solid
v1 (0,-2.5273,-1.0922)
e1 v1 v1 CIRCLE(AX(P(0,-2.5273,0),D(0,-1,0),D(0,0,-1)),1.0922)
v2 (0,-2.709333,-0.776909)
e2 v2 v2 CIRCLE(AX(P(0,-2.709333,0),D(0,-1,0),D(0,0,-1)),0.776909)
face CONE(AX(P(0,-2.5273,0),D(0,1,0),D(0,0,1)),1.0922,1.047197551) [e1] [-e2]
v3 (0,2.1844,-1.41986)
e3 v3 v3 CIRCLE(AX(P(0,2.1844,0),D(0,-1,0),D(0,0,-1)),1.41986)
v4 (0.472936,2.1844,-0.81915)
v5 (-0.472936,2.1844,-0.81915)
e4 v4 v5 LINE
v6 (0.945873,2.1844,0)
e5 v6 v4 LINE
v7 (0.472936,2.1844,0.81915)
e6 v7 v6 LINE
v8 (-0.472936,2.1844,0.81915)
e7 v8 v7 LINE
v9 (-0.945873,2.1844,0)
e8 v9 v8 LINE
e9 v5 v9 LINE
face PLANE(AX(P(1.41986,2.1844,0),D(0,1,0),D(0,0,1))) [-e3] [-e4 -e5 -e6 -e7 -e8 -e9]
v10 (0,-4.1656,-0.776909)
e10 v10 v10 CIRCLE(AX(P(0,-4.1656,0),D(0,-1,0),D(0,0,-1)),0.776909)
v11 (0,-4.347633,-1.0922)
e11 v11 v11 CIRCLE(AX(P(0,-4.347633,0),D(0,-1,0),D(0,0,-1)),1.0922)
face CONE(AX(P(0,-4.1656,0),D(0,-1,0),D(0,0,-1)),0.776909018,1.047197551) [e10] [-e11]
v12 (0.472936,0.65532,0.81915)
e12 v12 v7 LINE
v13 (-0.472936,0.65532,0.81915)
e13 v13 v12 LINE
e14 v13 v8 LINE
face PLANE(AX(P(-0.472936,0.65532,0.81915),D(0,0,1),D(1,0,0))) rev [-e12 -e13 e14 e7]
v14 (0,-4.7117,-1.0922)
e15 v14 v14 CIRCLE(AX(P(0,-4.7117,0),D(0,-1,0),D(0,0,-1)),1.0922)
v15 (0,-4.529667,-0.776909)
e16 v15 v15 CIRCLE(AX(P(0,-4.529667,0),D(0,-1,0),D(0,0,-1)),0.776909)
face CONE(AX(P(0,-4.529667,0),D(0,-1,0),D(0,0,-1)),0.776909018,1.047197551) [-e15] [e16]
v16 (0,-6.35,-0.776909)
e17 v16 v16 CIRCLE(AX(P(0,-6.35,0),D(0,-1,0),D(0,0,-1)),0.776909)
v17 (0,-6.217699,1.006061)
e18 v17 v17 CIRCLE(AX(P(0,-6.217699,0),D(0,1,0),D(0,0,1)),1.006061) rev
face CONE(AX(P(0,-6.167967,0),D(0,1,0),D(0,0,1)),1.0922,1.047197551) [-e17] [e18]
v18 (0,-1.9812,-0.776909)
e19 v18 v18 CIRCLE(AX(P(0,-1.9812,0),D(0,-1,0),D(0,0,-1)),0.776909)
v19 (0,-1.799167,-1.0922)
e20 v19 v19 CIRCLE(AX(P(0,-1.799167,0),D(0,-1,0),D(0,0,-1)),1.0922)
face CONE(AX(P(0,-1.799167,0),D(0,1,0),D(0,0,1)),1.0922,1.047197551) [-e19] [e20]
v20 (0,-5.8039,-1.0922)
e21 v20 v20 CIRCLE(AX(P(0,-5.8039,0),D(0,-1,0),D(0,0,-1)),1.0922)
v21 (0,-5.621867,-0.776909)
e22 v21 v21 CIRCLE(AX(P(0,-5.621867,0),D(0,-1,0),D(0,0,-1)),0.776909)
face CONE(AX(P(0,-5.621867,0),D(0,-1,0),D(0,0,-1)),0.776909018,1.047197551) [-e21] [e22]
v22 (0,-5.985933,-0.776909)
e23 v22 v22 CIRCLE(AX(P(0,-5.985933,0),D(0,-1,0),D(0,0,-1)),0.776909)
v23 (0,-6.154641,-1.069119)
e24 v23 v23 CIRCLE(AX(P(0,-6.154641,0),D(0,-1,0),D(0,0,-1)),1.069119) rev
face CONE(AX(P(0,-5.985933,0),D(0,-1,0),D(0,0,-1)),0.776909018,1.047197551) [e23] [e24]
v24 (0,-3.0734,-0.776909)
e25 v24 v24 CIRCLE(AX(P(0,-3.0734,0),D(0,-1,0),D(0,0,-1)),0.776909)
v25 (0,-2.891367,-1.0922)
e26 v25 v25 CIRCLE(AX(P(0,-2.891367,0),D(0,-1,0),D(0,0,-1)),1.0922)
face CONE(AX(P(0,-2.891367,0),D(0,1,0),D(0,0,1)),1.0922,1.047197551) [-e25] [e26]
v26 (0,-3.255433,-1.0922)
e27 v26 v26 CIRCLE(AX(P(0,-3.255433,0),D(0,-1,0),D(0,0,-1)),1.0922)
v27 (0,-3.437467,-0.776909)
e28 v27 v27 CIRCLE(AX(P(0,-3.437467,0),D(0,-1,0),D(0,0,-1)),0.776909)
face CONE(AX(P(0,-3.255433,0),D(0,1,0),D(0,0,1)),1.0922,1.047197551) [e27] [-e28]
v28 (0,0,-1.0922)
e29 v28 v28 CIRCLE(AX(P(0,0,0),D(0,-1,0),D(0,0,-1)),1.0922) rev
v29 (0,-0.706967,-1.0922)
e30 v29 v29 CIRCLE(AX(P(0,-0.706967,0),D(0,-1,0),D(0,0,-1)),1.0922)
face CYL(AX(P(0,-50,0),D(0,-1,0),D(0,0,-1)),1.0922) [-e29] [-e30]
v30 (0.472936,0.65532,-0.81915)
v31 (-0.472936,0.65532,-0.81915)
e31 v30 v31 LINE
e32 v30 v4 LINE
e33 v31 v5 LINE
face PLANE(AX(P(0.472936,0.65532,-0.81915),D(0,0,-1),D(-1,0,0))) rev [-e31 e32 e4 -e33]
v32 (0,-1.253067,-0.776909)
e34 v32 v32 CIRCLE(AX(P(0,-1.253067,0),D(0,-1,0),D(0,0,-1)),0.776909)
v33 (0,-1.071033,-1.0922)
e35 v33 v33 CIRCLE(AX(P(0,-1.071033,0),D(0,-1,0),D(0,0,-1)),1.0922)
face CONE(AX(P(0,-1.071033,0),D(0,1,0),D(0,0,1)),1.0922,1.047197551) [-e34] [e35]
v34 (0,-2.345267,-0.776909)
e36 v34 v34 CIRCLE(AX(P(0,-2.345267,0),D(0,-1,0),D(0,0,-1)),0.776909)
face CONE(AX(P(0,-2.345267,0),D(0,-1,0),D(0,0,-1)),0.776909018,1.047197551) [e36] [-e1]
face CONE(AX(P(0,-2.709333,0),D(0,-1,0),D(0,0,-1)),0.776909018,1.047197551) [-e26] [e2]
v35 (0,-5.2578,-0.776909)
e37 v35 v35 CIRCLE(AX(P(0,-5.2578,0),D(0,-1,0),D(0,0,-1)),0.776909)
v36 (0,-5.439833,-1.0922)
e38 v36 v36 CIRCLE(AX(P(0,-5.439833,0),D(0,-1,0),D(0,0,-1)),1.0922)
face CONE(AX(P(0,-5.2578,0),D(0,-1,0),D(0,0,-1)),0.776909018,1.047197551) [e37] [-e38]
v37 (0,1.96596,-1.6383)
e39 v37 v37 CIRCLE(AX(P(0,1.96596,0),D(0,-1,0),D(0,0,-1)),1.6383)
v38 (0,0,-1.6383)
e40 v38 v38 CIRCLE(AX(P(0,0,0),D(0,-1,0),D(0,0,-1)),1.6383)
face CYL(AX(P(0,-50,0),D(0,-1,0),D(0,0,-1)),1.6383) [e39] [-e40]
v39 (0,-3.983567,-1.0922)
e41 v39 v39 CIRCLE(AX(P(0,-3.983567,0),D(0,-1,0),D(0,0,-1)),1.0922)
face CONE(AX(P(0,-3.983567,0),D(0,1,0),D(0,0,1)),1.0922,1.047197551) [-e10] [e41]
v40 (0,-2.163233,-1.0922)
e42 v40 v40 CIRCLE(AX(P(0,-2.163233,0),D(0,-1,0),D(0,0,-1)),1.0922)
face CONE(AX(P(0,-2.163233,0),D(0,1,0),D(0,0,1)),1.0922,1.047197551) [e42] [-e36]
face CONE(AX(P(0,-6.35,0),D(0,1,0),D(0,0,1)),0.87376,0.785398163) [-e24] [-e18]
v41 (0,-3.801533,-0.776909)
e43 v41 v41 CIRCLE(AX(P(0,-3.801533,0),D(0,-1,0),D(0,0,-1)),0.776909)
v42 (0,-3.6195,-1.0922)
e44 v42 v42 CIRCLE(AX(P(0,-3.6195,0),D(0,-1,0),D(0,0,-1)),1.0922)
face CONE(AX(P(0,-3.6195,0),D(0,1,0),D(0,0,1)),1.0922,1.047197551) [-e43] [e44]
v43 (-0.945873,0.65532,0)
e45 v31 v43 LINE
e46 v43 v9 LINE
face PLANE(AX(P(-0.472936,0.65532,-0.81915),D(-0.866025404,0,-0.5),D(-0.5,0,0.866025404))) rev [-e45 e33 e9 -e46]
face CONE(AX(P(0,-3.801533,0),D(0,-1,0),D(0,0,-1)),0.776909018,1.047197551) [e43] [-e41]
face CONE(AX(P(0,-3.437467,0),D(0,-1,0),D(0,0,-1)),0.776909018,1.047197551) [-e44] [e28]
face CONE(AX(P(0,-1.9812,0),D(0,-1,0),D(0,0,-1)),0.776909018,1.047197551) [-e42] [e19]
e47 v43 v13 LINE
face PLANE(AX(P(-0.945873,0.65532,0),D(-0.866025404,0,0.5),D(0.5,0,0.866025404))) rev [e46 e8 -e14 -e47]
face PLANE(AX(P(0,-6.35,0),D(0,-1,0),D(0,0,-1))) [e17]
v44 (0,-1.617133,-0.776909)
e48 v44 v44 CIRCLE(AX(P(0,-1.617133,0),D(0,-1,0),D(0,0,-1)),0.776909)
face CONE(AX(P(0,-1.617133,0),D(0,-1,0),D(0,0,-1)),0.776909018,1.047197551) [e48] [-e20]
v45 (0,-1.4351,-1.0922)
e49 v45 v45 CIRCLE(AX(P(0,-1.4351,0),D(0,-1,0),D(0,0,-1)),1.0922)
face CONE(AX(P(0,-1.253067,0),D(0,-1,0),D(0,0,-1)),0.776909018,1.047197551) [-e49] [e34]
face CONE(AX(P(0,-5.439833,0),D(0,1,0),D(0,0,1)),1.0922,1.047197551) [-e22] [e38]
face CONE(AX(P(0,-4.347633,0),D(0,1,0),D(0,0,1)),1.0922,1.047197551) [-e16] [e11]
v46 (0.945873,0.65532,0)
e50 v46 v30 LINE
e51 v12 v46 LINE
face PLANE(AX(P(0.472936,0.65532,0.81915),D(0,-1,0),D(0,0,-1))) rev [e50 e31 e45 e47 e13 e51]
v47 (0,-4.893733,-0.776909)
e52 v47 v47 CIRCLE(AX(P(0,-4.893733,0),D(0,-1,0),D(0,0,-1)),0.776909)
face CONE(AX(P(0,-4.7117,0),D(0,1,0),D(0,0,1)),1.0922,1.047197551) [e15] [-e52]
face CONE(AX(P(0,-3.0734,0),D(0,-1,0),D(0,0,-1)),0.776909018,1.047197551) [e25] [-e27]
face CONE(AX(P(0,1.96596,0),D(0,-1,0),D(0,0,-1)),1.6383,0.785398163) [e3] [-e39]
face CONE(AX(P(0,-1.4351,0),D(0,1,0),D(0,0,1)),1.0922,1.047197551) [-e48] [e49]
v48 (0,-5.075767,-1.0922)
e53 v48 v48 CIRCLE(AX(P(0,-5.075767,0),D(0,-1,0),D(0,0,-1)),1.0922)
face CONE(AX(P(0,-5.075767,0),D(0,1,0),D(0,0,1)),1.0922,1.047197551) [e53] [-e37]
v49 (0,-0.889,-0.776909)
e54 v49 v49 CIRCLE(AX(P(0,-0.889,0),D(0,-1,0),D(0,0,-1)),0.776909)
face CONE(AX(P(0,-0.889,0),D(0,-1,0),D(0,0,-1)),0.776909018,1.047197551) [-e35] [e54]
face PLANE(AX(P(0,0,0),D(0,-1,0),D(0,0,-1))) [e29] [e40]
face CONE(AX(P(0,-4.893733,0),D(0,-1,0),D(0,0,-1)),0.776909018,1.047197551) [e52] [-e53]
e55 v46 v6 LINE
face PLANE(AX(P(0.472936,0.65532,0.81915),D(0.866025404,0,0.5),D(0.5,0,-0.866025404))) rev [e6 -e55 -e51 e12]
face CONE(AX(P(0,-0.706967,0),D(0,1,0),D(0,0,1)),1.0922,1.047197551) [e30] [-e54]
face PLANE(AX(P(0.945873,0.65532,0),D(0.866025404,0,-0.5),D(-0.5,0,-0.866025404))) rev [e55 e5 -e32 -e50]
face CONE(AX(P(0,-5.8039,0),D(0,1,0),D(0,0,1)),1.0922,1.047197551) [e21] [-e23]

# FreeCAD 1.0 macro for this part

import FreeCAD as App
import Part
import Sketcher
from FreeCAD import Vector
Q = App.Units.Quantity

doc = App.newDocument("Part")
body = doc.addObject("PartDesign::Body", "Body")

sketch1 = body.newObject("Sketcher::SketchObject", "Sketch")
sketch1.AttachmentSupport = (doc.getObject("XY_Plane"), [""])
sketch1.MapMode = "FlatFace"
sketch1.addGeometry([
    Part.LineSegment(Vector(0, 0.66, 0), Vector(0, -6.35, 0)),
    Part.LineSegment(Vector(0, -6.35, 0), Vector(0.87, -6.35, 0)),
    Part.LineSegment(Vector(0.87, -6.35, 0), Vector(1.09, -6.13, 0)),
    Part.LineSegment(Vector(1.09, -6.13, 0), Vector(1.09, 0.66, 0)),
    Part.LineSegment(Vector(1.09, 0.66, 0), Vector(0, 0.66, 0)),
], False)
sketch1.addConstraint([
    Sketcher.Constraint("Coincident", 0, 2, 1, 1),
    Sketcher.Constraint("Coincident", 1, 2, 2, 1),
    Sketcher.Constraint("Coincident", 2, 2, 3, 1),
    Sketcher.Constraint("Coincident", 3, 2, 4, 1),
    Sketcher.Constraint("Coincident", 4, 2, 0, 1),
    Sketcher.Constraint("Vertical", 0),
    Sketcher.Constraint("Horizontal", 1),
    Sketcher.Constraint("Vertical", 3),
    Sketcher.Constraint("Horizontal", 4),
    Sketcher.Constraint("PointOnObject", 0, 2, -2),
    Sketcher.Constraint("Angle", 2, Q("45 deg")),
    Sketcher.Constraint("DistanceX", 4, 2, 4, 1, Q("0.043 in")),
    Sketcher.Constraint("DistanceY", 0, 2, -1, 1, Q("0.25 in")),
    Sketcher.Constraint("DistanceX", 1, 1, 1, 2, Q("0.0344 in")),
    Sketcher.Constraint("DistanceY", 0, 2, 0, 1, Q("0.2758 in")),
])
revolution = body.newObject("PartDesign::Revolution", "Revolution")
revolution.Profile = sketch1
revolution.ReferenceAxis = (sketch1, ["V_Axis"])
revolution.Angle = 360

sketch2 = body.newObject("Sketcher::SketchObject", "Sketch001")
sketch2.AttachmentSupport = (doc.getObject("XY_Plane"), [""])
sketch2.MapMode = "FlatFace"
sketch2.addGeometry([
    Part.LineSegment(Vector(1.09, -0.71, 0), Vector(0.78, -0.89, 0)),
    Part.LineSegment(Vector(0.78, -0.89, 0), Vector(1.09, -1.07, 0)),
    Part.LineSegment(Vector(1.09, -1.07, 0), Vector(0.78, -1.25, 0)),
    Part.LineSegment(Vector(0.78, -1.25, 0), Vector(1.09, -1.44, 0)),
    Part.LineSegment(Vector(1.09, -1.44, 0), Vector(0.78, -1.62, 0)),
    Part.LineSegment(Vector(0.78, -1.62, 0), Vector(1.09, -1.8, 0)),
    Part.LineSegment(Vector(1.09, -1.8, 0), Vector(0.78, -1.98, 0)),
    Part.LineSegment(Vector(0.78, -1.98, 0), Vector(1.09, -2.16, 0)),
    Part.LineSegment(Vector(1.09, -2.16, 0), Vector(0.78, -2.35, 0)),
    Part.LineSegment(Vector(0.78, -2.35, 0), Vector(1.09, -2.53, 0)),
    Part.LineSegment(Vector(1.09, -2.53, 0), Vector(0.78, -2.71, 0)),
    Part.LineSegment(Vector(0.78, -2.71, 0), Vector(1.09, -2.89, 0)),
    Part.LineSegment(Vector(1.09, -2.89, 0), Vector(0.78, -3.07, 0)),
    Part.LineSegment(Vector(0.78, -3.07, 0), Vector(1.09, -3.26, 0)),
    Part.LineSegment(Vector(1.09, -3.26, 0), Vector(0.78, -3.44, 0)),
    Part.LineSegment(Vector(0.78, -3.44, 0), Vector(1.09, -3.62, 0)),
    Part.LineSegment(Vector(1.09, -3.62, 0), Vector(0.78, -3.8, 0)),
    Part.LineSegment(Vector(0.78, -3.8, 0), Vector(1.09, -3.98, 0)),
    Part.LineSegment(Vector(1.09, -3.98, 0), Vector(0.78, -4.17, 0)),
    Part.LineSegment(Vector(0.78, -4.17, 0), Vector(1.09, -4.35, 0)),
    Part.LineSegment(Vector(1.09, -4.35, 0), Vector(0.78, -4.53, 0)),
    Part.LineSegment(Vector(0.78, -4.53, 0), Vector(1.09, -4.71, 0)),
    Part.LineSegment(Vector(1.09, -4.71, 0), Vector(0.78, -4.89, 0)),
    Part.LineSegment(Vector(0.78, -4.89, 0), Vector(1.09, -5.08, 0)),
    Part.LineSegment(Vector(1.09, -5.08, 0), Vector(0.78, -5.26, 0)),
    Part.LineSegment(Vector(0.78, -5.26, 0), Vector(1.09, -5.44, 0)),
    Part.LineSegment(Vector(1.09, -5.44, 0), Vector(0.78, -5.62, 0)),
    Part.LineSegment(Vector(0.78, -5.62, 0), Vector(1.09, -5.8, 0)),
    Part.LineSegment(Vector(1.09, -5.8, 0), Vector(0.78, -5.99, 0)),
    Part.LineSegment(Vector(0.78, -5.99, 0), Vector(1.09, -6.17, 0)),
    Part.LineSegment(Vector(1.09, -6.17, 0), Vector(0.78, -6.35, 0)),
    Part.LineSegment(Vector(0.78, -6.35, 0), Vector(1.09, -6.53, 0)),
    Part.LineSegment(Vector(1.09, -6.53, 0), Vector(0.78, -6.71, 0)),
    Part.LineSegment(Vector(0.78, -6.71, 0), Vector(1.09, -6.9, 0)),
    Part.LineSegment(Vector(1.09, -6.9, 0), Vector(0.78, -7.08, 0)),
    Part.LineSegment(Vector(0.78, -7.08, 0), Vector(1.09, -7.26, 0)),
    Part.LineSegment(Vector(1.09, -7.26, 0), Vector(1.63, -7.26, 0)),
    Part.LineSegment(Vector(1.63, -7.26, 0), Vector(1.63, -0.71, 0)),
    Part.LineSegment(Vector(1.63, -0.71, 0), Vector(1.09, -0.71, 0)),
], False)
sketch2.addConstraint([
    Sketcher.Constraint("Coincident", 0, 2, 1, 1),
    Sketcher.Constraint("Coincident", 1, 2, 2, 1),
    Sketcher.Constraint("Coincident", 2, 2, 3, 1),
    Sketcher.Constraint("Coincident", 3, 2, 4, 1),
    Sketcher.Constraint("Coincident", 4, 2, 5, 1),
    Sketcher.Constraint("Coincident", 5, 2, 6, 1),
    Sketcher.Constraint("Coincident", 6, 2, 7, 1),
    Sketcher.Constraint("Coincident", 7, 2, 8, 1),
    Sketcher.Constraint("Coincident", 8, 2, 9, 1),
    Sketcher.Constraint("Coincident", 9, 2, 10, 1),
    Sketcher.Constraint("Coincident", 10, 2, 11, 1),
    Sketcher.Constraint("Coincident", 11, 2, 12, 1),
    Sketcher.Constraint("Coincident", 12, 2, 13, 1),
    Sketcher.Constraint("Coincident", 13, 2, 14, 1),
    Sketcher.Constraint("Coincident", 14, 2, 15, 1),
    Sketcher.Constraint("Coincident", 15, 2, 16, 1),
    Sketcher.Constraint("Coincident", 16, 2, 17, 1),
    Sketcher.Constraint("Coincident", 17, 2, 18, 1),
    Sketcher.Constraint("Coincident", 18, 2, 19, 1),
    Sketcher.Constraint("Coincident", 19, 2, 20, 1),
    Sketcher.Constraint("Coincident", 20, 2, 21, 1),
    Sketcher.Constraint("Coincident", 21, 2, 22, 1),
    Sketcher.Constraint("Coincident", 22, 2, 23, 1),
    Sketcher.Constraint("Coincident", 23, 2, 24, 1),
    Sketcher.Constraint("Coincident", 24, 2, 25, 1),
    Sketcher.Constraint("Coincident", 25, 2, 26, 1),
    Sketcher.Constraint("Coincident", 26, 2, 27, 1),
    Sketcher.Constraint("Coincident", 27, 2, 28, 1),
    Sketcher.Constraint("Coincident", 28, 2, 29, 1),
    Sketcher.Constraint("Coincident", 29, 2, 30, 1),
    Sketcher.Constraint("Coincident", 30, 2, 31, 1),
    Sketcher.Constraint("Coincident", 31, 2, 32, 1),
    Sketcher.Constraint("Coincident", 32, 2, 33, 1),
    Sketcher.Constraint("Coincident", 33, 2, 34, 1),
    Sketcher.Constraint("Coincident", 34, 2, 35, 1),
    Sketcher.Constraint("Coincident", 35, 2, 36, 1),
    Sketcher.Constraint("Coincident", 36, 2, 37, 1),
    Sketcher.Constraint("Coincident", 37, 2, 38, 1),
    Sketcher.Constraint("Coincident", 38, 2, 0, 1),
    Sketcher.Constraint("Horizontal", 36),
    Sketcher.Constraint("Vertical", 37),
    Sketcher.Constraint("Horizontal", 38),
    Sketcher.Constraint("Parallel", 0, 2),
    Sketcher.Constraint("Parallel", 1, 3),
    Sketcher.Constraint("Parallel", 2, 4),
    Sketcher.Constraint("Parallel", 3, 5),
    Sketcher.Constraint("Parallel", 4, 6),
    Sketcher.Constraint("Parallel", 5, 7),
    Sketcher.Constraint("Parallel", 6, 8),
    Sketcher.Constraint("Parallel", 7, 9),
    Sketcher.Constraint("Parallel", 8, 10),
    Sketcher.Constraint("Parallel", 9, 11),
    Sketcher.Constraint("Parallel", 10, 12),
    Sketcher.Constraint("Parallel", 11, 13),
    Sketcher.Constraint("Parallel", 12, 14),
    Sketcher.Constraint("Parallel", 13, 15),
    Sketcher.Constraint("Parallel", 14, 16),
    Sketcher.Constraint("Parallel", 15, 17),
    Sketcher.Constraint("Parallel", 16, 18),
    Sketcher.Constraint("Parallel", 17, 19),
    Sketcher.Constraint("Parallel", 18, 20),
    Sketcher.Constraint("Parallel", 19, 21),
    Sketcher.Constraint("Parallel", 20, 22),
    Sketcher.Constraint("Parallel", 21, 23),
    Sketcher.Constraint("Parallel", 22, 24),
    Sketcher.Constraint("Parallel", 23, 25),
    Sketcher.Constraint("Parallel", 24, 26),
    Sketcher.Constraint("Parallel", 25, 27),
    Sketcher.Constraint("Parallel", 26, 28),
    Sketcher.Constraint("Parallel", 27, 29),
    Sketcher.Constraint("Parallel", 28, 30),
    Sketcher.Constraint("Parallel", 29, 31),
    Sketcher.Constraint("Parallel", 30, 32),
    Sketcher.Constraint("Parallel", 31, 33),
    Sketcher.Constraint("Parallel", 32, 34),
    Sketcher.Constraint("Parallel", 33, 35),
    Sketcher.Constraint("Vertical", 0, 2, 2, 2),
    Sketcher.Constraint("Vertical", 1, 2, 3, 2),
    Sketcher.Constraint("Vertical", 2, 2, 4, 2),
    Sketcher.Constraint("Vertical", 3, 2, 5, 2),
    Sketcher.Constraint("Vertical", 4, 2, 6, 2),
    Sketcher.Constraint("Vertical", 5, 2, 7, 2),
    Sketcher.Constraint("Vertical", 6, 2, 8, 2),
    Sketcher.Constraint("Vertical", 7, 2, 9, 2),
    Sketcher.Constraint("Vertical", 8, 2, 10, 2),
    Sketcher.Constraint("Vertical", 9, 2, 11, 2),
    Sketcher.Constraint("Vertical", 10, 2, 12, 2),
    Sketcher.Constraint("Vertical", 11, 2, 13, 2),
    Sketcher.Constraint("Vertical", 12, 2, 14, 2),
    Sketcher.Constraint("Vertical", 13, 2, 15, 2),
    Sketcher.Constraint("Vertical", 14, 2, 16, 2),
    Sketcher.Constraint("Vertical", 15, 2, 17, 2),
    Sketcher.Constraint("Vertical", 16, 2, 18, 2),
    Sketcher.Constraint("Vertical", 17, 2, 19, 2),
    Sketcher.Constraint("Vertical", 18, 2, 20, 2),
    Sketcher.Constraint("Vertical", 19, 2, 21, 2),
    Sketcher.Constraint("Vertical", 20, 2, 22, 2),
    Sketcher.Constraint("Vertical", 21, 2, 23, 2),
    Sketcher.Constraint("Vertical", 22, 2, 24, 2),
    Sketcher.Constraint("Vertical", 23, 2, 25, 2),
    Sketcher.Constraint("Vertical", 24, 2, 26, 2),
    Sketcher.Constraint("Vertical", 25, 2, 27, 2),
    Sketcher.Constraint("Vertical", 26, 2, 28, 2),
    Sketcher.Constraint("Vertical", 27, 2, 29, 2),
    Sketcher.Constraint("Vertical", 28, 2, 30, 2),
    Sketcher.Constraint("Vertical", 29, 2, 31, 2),
    Sketcher.Constraint("Vertical", 30, 2, 32, 2),
    Sketcher.Constraint("Vertical", 31, 2, 33, 2),
    Sketcher.Constraint("Vertical", 32, 2, 34, 2),
    Sketcher.Constraint("Vertical", 33, 2, 35, 2),
    Sketcher.Constraint("Vertical", 35, 2, 38, 2),
    Sketcher.Constraint("Equal", 0, 1),
    Sketcher.Constraint("Angle", 0, Q("-150 deg")),
    Sketcher.Constraint("DistanceY", 37, 1, 37, 2, Q("0.258 in")),
    Sketcher.Constraint("DistanceY", 30, 2, -1, 1, Q("0.25 in")),
    Sketcher.Constraint("DistanceX", -1, 1, 1, 2, Q("0.043 in")),
    Sketcher.Constraint("DistanceX", 36, 1, 36, 2, Q("0.54154 mm")),
])
groove = body.newObject("PartDesign::Groove", "Groove")
groove.Profile = sketch2
groove.ReferenceAxis = (sketch2, ["V_Axis"])
groove.Angle = 360

sketch3 = body.newObject("Sketcher::SketchObject", "Sketch002")
sketch3.AttachmentSupport = (doc.getObject("XY_Plane"), [""])
sketch3.MapMode = "FlatFace"
sketch3.addGeometry([
    Part.LineSegment(Vector(0, 2.18, 0), Vector(0, 0, 0)),
    Part.LineSegment(Vector(0, 0, 0), Vector(1.64, 0, 0)),
    Part.LineSegment(Vector(1.64, 0, 0), Vector(1.64, 1.97, 0)),
    Part.LineSegment(Vector(1.64, 1.97, 0), Vector(1.42, 2.18, 0)),
    Part.LineSegment(Vector(1.42, 2.18, 0), Vector(0, 2.18, 0)),
], False)
sketch3.addConstraint([
    Sketcher.Constraint("Coincident", 0, 2, 1, 1),
    Sketcher.Constraint("Coincident", 1, 2, 2, 1),
    Sketcher.Constraint("Coincident", 2, 2, 3, 1),
    Sketcher.Constraint("Coincident", 3, 2, 4, 1),
    Sketcher.Constraint("Coincident", 4, 2, 0, 1),
    Sketcher.Constraint("Vertical", 0),
    Sketcher.Constraint("Horizontal", 1),
    Sketcher.Constraint("Vertical", 2),
    Sketcher.Constraint("Horizontal", 4),
    Sketcher.Constraint("Coincident", 0, 2, -1, 1),
    Sketcher.Constraint("Angle", 3, Q("135 deg")),
    Sketcher.Constraint("DistanceY", 0, 2, 0, 1, Q("0.086 in")),
    Sketcher.Constraint("DistanceX", 1, 1, 1, 2, Q("0.0645 in")),
    Sketcher.Constraint("DistanceX", 4, 2, 4, 1, Q("0.0559 in")),
])
revolution2 = body.newObject("PartDesign::Revolution", "Revolution001")
revolution2.Profile = sketch3
revolution2.ReferenceAxis = (sketch3, ["V_Axis"])
revolution2.Angle = 360

sketch4 = body.newObject("Sketcher::SketchObject", "Sketch003")
sketch4.AttachmentSupport = (doc.getObject("XZ_Plane"), [""])
sketch4.MapMode = "FlatFace"
sketch4.AttachmentOffset = App.Placement(Vector(0, 0, -0.086 * 25.4), App.Rotation())
sketch4.addGeometry([
    Part.LineSegment(Vector(0.9, 0, 0), Vector(0.5, -0.8, 0)),
    Part.LineSegment(Vector(0.5, -0.8, 0), Vector(-0.5, -0.8, 0)),
    Part.LineSegment(Vector(-0.5, -0.8, 0), Vector(-0.9, 0, 0)),
    Part.LineSegment(Vector(-0.9, 0, 0), Vector(-0.5, 0.8, 0)),
    Part.LineSegment(Vector(-0.5, 0.8, 0), Vector(0.5, 0.8, 0)),
    Part.LineSegment(Vector(0.5, 0.8, 0), Vector(0.9, 0, 0)),
], False)
sketch4.addConstraint([
    Sketcher.Constraint("Coincident", 0, 2, 1, 1),
    Sketcher.Constraint("Coincident", 1, 2, 2, 1),
    Sketcher.Constraint("Coincident", 2, 2, 3, 1),
    Sketcher.Constraint("Coincident", 3, 2, 4, 1),
    Sketcher.Constraint("Coincident", 4, 2, 5, 1),
    Sketcher.Constraint("Coincident", 5, 2, 0, 1),
    Sketcher.Constraint("Horizontal", 1),
    Sketcher.Constraint("Horizontal", 4),
    Sketcher.Constraint("Symmetric", 0, 2, 3, 2, -1, 1),
    Sketcher.Constraint("Symmetric", 2, 2, 5, 2, -1, 1),
    Sketcher.Constraint("PointOnObject", 2, 2, -1),
    Sketcher.Constraint("Parallel", 2, 5),
    Sketcher.Constraint("Vertical", 1, 2, 3, 2),
    Sketcher.Constraint("Angle", 0, Q("-120 deg")),
    Sketcher.Constraint("DistanceY", 1, 2, 3, 2, Q("0.0645 in")),
    Sketcher.Constraint("DistanceX", 1, 2, 1, 1, Q("0.945873 mm")),
])
pocket1 = body.newObject("PartDesign::Pocket", "Pocket")
pocket1.Profile = sketch4
pocket1.Length = Q("0.0602 in")
pocket1.Reversed = True

doc.recompute()
